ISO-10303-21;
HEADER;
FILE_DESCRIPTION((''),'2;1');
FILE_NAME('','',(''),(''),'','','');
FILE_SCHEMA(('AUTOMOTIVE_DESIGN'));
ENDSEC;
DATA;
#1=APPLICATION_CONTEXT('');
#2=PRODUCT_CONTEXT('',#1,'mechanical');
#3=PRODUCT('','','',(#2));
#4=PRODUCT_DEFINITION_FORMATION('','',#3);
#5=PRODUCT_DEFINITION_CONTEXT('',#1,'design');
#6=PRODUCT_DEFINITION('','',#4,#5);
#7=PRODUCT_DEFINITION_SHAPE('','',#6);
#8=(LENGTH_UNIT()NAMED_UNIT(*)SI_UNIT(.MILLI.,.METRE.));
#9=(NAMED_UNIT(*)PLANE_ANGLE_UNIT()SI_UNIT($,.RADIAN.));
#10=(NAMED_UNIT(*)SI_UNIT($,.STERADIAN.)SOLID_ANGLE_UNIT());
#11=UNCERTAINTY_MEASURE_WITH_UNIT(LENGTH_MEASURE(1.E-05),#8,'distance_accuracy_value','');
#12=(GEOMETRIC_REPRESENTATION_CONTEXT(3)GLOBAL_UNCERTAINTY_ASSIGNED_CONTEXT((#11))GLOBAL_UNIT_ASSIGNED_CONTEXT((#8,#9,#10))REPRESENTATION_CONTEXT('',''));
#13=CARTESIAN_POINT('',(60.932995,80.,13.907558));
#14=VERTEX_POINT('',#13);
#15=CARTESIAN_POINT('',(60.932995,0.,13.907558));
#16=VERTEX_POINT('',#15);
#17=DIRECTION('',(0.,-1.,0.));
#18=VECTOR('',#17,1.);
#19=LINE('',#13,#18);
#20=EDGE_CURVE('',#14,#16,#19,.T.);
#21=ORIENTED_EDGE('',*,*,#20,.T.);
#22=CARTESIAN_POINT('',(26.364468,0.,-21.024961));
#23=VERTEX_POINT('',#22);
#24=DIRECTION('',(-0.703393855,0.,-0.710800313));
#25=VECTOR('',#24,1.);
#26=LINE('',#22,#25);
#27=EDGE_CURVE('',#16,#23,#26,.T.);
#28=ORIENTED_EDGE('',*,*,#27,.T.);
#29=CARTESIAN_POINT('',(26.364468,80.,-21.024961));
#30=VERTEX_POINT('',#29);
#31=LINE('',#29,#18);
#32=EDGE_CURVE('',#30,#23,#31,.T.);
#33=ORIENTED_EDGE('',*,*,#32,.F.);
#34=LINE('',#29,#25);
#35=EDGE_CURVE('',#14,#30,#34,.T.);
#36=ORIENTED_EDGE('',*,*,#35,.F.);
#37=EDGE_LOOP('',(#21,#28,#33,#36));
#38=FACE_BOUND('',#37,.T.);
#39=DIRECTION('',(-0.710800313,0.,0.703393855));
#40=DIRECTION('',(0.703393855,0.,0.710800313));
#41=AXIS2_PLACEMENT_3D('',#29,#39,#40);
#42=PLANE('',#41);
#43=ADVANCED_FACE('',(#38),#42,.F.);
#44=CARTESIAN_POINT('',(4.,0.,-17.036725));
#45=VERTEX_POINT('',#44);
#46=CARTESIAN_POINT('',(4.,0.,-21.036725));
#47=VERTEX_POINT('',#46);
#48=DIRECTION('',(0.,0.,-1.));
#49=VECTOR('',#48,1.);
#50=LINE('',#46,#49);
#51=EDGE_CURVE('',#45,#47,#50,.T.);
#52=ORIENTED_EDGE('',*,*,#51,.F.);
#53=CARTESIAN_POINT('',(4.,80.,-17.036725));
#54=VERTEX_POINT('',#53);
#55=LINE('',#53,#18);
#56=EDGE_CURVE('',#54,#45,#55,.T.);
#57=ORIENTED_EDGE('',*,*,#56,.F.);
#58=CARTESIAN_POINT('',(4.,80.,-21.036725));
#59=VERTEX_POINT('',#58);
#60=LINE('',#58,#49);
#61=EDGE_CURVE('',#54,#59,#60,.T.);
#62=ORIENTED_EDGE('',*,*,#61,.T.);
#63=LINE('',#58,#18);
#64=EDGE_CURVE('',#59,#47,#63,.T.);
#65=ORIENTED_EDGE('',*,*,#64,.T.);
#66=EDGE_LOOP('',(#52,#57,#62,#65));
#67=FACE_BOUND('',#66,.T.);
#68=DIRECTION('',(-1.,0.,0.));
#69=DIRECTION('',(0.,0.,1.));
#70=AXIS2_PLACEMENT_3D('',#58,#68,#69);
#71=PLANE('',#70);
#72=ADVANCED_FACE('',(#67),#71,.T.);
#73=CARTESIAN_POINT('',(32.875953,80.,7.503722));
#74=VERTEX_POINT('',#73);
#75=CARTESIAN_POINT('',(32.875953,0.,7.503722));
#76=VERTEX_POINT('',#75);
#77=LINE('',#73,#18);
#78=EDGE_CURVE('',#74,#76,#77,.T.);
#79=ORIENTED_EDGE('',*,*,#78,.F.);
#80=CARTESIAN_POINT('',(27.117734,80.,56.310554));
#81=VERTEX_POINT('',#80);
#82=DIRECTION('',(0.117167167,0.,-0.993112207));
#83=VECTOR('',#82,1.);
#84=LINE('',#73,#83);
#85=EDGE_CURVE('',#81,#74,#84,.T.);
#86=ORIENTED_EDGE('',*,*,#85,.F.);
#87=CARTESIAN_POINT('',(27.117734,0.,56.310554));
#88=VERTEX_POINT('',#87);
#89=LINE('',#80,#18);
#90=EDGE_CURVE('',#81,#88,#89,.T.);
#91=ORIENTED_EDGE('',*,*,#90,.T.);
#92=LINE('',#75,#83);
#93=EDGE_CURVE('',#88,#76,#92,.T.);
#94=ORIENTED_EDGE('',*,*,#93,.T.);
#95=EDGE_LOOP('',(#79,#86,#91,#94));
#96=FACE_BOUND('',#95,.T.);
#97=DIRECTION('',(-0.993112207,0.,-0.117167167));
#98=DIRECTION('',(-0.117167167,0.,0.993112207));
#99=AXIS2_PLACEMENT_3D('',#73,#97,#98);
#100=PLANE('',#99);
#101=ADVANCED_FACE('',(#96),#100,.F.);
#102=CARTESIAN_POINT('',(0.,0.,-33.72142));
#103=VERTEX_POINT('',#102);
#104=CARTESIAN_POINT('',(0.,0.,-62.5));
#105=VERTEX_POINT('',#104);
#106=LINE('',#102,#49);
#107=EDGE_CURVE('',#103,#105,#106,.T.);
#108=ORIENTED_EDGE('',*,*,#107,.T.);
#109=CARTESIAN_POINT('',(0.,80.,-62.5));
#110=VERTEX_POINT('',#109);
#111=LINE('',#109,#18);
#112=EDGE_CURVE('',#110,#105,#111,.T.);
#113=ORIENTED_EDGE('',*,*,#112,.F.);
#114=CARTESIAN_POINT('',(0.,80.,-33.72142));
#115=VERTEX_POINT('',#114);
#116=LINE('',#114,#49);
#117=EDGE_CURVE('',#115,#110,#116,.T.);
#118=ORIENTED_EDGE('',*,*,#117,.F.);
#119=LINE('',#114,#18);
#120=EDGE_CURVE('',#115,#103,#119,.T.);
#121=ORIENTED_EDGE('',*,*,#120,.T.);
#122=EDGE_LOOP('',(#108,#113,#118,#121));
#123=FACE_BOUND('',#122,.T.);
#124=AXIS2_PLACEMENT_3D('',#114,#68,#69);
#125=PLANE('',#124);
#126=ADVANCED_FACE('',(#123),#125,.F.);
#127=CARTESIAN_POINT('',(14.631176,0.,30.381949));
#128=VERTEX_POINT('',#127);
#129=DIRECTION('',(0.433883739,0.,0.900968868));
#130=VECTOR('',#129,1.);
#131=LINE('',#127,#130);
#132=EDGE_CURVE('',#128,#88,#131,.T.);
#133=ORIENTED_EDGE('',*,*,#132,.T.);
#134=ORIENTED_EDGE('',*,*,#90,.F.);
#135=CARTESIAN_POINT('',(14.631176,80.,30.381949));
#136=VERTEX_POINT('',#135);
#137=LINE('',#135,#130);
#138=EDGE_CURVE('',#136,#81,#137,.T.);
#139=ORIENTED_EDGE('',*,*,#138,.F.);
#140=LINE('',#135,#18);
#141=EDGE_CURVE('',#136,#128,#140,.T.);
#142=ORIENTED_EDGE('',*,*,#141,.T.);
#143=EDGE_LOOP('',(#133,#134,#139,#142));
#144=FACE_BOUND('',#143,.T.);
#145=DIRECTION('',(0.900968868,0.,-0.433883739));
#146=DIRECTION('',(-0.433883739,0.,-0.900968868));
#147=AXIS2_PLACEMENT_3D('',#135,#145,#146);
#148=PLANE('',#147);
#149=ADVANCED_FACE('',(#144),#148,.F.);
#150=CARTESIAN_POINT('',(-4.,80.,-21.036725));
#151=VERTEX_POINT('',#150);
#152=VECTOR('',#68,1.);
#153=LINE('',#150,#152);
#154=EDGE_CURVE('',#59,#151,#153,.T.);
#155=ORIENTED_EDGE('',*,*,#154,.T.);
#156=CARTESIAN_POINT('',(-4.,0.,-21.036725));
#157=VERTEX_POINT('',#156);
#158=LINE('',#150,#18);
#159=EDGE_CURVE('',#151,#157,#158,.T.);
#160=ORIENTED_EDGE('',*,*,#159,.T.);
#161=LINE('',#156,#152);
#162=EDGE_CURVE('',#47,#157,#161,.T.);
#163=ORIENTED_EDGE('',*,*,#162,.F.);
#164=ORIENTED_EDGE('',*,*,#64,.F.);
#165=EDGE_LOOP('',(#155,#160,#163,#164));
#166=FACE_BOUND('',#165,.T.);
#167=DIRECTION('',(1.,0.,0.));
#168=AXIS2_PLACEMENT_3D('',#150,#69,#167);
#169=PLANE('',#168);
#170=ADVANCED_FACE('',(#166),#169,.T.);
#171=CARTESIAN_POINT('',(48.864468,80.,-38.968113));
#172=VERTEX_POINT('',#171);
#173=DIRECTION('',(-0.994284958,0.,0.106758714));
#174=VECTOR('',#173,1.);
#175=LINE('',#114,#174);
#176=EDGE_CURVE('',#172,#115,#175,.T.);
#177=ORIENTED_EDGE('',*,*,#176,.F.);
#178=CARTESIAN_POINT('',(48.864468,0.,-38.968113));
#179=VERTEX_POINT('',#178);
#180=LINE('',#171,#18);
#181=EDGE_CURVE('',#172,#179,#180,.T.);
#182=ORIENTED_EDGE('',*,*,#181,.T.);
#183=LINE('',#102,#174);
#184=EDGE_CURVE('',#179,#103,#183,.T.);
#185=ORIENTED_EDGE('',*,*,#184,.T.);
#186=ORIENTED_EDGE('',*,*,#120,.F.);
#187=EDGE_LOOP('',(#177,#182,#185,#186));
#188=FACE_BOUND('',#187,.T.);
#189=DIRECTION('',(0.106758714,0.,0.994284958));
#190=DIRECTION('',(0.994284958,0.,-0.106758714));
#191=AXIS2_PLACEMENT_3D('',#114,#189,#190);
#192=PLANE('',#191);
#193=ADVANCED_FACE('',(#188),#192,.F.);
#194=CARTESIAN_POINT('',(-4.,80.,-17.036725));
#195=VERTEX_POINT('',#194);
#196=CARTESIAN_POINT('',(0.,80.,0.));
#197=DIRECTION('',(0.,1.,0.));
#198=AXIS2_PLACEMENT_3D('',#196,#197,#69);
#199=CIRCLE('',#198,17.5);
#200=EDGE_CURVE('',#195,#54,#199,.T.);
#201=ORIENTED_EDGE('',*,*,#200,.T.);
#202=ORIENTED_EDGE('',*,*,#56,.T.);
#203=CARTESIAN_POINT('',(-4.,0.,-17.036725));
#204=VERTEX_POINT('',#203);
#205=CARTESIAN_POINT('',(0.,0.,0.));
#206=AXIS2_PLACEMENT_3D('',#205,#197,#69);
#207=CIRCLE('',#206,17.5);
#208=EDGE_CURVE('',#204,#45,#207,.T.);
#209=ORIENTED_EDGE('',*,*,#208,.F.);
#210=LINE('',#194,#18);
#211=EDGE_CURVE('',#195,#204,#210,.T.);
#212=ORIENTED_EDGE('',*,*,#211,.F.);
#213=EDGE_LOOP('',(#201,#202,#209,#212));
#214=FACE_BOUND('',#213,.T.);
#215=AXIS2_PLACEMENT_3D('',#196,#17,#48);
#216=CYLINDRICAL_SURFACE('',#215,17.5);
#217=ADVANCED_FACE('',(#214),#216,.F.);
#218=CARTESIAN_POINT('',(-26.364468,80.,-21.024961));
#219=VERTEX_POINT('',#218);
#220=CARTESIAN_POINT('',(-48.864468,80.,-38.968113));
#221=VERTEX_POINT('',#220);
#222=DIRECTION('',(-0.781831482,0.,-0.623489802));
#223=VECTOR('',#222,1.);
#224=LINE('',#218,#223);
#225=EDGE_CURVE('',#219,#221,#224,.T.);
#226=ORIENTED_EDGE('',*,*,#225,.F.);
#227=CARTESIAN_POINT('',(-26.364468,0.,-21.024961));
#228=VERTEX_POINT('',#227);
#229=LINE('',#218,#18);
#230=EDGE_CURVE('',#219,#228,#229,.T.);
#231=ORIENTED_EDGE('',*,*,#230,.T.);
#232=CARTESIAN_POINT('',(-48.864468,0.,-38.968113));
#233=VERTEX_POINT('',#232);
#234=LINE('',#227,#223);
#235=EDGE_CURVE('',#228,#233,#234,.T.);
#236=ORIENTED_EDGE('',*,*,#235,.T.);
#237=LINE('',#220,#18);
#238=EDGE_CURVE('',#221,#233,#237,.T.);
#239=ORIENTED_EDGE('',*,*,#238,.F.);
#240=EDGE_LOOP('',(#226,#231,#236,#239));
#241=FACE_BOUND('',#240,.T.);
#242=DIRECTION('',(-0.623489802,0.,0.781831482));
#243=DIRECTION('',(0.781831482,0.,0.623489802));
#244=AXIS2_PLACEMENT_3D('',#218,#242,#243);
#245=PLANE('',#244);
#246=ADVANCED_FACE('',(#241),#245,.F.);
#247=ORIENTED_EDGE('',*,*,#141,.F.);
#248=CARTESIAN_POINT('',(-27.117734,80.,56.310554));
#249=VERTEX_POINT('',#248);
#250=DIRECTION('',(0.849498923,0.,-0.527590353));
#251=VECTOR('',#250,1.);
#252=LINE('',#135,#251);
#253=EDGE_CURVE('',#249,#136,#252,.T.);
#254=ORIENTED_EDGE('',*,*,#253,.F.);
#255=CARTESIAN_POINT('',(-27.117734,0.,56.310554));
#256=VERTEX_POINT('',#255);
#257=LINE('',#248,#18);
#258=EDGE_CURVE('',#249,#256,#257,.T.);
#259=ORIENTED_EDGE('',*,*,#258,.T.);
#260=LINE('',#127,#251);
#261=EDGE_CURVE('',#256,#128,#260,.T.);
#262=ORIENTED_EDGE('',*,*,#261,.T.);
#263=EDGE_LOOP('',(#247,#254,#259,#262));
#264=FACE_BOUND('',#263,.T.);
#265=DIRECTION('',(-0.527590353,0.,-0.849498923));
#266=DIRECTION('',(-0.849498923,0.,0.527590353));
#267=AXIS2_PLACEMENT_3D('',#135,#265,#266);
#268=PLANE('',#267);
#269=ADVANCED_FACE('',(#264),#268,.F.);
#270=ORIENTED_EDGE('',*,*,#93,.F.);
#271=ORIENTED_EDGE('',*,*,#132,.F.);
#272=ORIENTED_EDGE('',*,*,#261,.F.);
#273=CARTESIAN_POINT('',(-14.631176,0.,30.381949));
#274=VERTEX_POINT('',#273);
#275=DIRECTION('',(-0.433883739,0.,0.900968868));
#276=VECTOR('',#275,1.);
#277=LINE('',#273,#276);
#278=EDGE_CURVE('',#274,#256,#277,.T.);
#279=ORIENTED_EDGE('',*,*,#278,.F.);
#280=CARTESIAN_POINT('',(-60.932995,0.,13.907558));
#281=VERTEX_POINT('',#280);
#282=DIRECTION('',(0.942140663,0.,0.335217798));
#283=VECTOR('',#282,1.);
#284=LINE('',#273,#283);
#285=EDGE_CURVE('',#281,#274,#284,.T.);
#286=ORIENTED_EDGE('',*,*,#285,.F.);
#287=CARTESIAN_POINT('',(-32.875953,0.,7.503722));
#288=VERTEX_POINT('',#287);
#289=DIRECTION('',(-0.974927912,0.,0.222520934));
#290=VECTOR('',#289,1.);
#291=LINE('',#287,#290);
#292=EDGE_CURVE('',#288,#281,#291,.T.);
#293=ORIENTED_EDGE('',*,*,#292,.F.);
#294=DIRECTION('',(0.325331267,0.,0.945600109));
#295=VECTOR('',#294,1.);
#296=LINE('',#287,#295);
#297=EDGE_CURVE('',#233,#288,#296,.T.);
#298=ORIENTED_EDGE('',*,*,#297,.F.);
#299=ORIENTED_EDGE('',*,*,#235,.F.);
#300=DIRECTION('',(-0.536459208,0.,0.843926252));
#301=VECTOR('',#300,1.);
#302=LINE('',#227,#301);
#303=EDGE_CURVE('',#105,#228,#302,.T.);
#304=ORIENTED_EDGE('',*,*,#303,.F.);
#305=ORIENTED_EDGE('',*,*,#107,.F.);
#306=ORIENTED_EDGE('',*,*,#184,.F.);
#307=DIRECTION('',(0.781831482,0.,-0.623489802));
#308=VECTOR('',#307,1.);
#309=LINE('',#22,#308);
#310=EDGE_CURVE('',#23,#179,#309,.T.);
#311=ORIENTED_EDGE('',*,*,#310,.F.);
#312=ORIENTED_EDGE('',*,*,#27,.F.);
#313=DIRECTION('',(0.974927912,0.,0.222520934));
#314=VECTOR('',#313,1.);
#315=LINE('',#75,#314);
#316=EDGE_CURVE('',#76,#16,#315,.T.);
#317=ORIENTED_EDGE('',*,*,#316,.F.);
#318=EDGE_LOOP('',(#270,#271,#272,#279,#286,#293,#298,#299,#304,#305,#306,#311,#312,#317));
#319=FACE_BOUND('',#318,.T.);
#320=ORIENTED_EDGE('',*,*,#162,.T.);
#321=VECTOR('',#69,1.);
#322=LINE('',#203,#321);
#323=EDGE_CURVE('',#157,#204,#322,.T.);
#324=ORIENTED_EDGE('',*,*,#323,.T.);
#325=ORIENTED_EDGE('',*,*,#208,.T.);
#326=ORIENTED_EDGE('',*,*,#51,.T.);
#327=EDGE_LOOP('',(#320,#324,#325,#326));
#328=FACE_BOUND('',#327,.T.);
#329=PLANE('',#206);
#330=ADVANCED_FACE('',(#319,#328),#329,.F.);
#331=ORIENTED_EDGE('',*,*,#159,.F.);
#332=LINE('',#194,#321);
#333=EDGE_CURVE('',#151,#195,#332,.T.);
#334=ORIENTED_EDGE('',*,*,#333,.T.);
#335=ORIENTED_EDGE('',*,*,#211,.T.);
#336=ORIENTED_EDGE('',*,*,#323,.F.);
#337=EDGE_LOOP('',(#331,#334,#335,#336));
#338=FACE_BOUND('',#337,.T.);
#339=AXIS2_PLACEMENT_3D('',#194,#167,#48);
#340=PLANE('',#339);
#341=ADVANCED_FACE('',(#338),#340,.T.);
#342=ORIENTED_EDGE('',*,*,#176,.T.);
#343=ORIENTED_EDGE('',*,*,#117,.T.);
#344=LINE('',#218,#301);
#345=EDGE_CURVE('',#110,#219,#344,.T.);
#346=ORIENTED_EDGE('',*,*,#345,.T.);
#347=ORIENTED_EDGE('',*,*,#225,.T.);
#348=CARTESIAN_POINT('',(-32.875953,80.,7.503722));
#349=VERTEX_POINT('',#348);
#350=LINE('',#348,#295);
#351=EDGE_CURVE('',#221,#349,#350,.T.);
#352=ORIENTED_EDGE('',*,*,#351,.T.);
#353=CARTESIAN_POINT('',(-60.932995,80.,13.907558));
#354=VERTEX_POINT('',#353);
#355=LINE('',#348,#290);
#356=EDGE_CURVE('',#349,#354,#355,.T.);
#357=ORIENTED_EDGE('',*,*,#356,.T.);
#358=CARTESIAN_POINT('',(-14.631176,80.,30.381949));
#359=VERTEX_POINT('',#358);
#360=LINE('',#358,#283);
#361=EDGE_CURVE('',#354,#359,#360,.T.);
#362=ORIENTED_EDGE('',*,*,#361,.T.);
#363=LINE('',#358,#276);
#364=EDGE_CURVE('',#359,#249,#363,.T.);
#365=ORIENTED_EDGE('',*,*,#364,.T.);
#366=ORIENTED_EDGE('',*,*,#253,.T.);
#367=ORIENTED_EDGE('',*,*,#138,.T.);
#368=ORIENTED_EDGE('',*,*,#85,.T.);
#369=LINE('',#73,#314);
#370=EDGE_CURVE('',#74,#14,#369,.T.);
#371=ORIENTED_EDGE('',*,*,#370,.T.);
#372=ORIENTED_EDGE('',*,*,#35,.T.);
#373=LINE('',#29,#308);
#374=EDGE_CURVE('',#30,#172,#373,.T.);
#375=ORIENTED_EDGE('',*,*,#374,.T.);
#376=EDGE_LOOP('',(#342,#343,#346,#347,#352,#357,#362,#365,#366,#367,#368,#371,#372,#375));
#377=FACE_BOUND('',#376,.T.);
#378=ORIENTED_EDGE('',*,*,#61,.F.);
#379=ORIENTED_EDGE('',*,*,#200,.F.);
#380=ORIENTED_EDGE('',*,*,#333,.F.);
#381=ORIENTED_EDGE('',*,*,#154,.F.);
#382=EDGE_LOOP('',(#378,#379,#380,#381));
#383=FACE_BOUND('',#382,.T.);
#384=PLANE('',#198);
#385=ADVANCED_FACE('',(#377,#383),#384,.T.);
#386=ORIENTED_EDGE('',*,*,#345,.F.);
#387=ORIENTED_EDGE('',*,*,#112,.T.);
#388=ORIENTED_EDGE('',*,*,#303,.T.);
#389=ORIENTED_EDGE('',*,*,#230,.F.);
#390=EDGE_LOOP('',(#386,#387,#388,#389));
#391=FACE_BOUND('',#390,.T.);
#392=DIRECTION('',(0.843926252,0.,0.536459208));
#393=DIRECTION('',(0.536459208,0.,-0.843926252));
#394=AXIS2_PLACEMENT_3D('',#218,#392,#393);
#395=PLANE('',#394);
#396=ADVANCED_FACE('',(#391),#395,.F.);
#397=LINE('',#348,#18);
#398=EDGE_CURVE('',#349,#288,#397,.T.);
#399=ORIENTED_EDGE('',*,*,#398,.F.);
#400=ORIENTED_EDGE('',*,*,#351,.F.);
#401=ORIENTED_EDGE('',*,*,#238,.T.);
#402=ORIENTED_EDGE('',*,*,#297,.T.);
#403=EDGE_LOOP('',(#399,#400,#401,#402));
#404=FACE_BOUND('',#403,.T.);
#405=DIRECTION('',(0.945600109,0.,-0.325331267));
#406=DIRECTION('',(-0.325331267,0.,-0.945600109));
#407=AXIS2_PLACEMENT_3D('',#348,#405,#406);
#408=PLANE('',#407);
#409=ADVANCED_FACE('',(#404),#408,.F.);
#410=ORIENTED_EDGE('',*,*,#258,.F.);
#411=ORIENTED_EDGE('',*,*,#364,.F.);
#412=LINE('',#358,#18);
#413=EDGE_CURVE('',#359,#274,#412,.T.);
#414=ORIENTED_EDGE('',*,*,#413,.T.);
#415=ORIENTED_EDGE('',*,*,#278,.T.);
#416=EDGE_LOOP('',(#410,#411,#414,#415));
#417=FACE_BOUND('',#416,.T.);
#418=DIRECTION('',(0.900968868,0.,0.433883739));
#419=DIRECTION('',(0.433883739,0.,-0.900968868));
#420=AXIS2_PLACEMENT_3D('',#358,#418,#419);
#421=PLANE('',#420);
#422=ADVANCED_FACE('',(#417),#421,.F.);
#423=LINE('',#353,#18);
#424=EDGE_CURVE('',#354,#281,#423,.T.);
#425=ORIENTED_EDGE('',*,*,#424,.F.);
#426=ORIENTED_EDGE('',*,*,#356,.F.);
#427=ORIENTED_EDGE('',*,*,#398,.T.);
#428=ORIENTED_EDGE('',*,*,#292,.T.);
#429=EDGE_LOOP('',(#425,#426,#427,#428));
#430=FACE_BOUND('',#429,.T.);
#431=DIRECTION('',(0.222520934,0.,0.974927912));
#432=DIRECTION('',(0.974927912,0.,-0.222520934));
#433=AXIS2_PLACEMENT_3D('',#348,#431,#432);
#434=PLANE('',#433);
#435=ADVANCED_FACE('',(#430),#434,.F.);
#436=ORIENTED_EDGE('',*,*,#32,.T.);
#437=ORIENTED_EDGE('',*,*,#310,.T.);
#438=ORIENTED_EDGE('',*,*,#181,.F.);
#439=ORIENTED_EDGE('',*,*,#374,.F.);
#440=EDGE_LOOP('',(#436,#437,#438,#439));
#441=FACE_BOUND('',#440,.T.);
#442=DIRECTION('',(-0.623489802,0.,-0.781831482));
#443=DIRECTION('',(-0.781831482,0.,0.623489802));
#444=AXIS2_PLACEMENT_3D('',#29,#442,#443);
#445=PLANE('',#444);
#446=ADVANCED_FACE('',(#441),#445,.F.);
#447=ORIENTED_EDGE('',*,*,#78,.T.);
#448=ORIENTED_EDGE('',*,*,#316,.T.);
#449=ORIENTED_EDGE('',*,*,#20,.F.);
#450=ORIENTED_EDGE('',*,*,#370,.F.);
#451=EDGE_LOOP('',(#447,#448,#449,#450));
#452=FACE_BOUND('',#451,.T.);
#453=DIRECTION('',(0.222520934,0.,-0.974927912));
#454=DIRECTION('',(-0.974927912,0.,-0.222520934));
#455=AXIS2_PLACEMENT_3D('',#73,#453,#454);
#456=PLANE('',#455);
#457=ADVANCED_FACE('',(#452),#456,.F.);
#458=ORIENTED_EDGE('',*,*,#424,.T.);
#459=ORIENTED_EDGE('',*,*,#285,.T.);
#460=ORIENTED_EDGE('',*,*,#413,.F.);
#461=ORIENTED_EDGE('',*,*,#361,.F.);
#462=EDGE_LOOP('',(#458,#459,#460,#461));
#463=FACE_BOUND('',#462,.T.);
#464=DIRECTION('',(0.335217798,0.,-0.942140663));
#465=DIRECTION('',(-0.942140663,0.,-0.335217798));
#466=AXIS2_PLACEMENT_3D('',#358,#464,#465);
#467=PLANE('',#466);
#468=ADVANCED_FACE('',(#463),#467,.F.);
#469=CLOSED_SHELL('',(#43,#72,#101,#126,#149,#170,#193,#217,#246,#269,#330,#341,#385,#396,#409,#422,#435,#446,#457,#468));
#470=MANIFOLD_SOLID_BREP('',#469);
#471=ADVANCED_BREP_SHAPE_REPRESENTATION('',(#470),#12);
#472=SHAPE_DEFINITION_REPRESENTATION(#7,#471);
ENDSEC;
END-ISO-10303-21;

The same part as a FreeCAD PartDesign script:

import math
import FreeCAD as App
import Part
import Sketcher
from FreeCAD import Vector


def add_polygon(sketch, points):
    """Adds a closed chain of lines whose ends are joined by coincident constraints."""
    first, n = sketch.GeometryCount, len(points)
    for a, b in zip(points, points[1:] + points[:1]):
        sketch.addGeometry(Part.LineSegment(App.Vector(*a, 0), App.Vector(*b, 0)), False)
    for i in range(n):
        sketch.addConstraint(Sketcher.Constraint("Coincident", first + i, 2, first + (i + 1) % n, 1))

doc = App.newDocument("Part")
body = doc.addObject("PartDesign::Body", "Body")

sketch1 = doc.addObject("Sketcher::SketchObject", "Sketch")
body.addObject(sketch1)
sketch1.AttachmentSupport = (doc.XZ_Plane, [""])
sketch1.MapMode = "FlatFace"
add_polygon(sketch1, [(0, -33.7), (0, -62.5), (-26.4, -21), (-48.9, -39), (-32.9, 7.5), (-60.9, 13.9), (-14.6, 30.4), (-27.1, 56.3), (14.6, 30.4), (27.1, 56.3), (32.9, 7.5), (60.9, 13.9), (26.4, -21), (48.9, -39)])
sketch1.addGeometry(Part.ArcOfCircle(Part.Circle(Vector(0, 0, 0), Vector(0, 0, 1), 17.5), math.radians(-77), math.radians(257)), False)
sketch1.addGeometry(Part.LineSegment(Vector(-4, -17, 0), Vector(-4, -21, 0)), False)
sketch1.addGeometry(Part.LineSegment(Vector(-4, -21, 0), Vector(4, -21, 0)), False)
sketch1.addGeometry(Part.LineSegment(Vector(4, -21, 0), Vector(4, -17, 0)), False)
sketch1.addConstraint([
    Sketcher.Constraint("Coincident", 14, 2, 15, 1),
    Sketcher.Constraint("Coincident", 15, 2, 16, 1),
    Sketcher.Constraint("Coincident", 16, 2, 17, 1),
    Sketcher.Constraint("Coincident", 17, 2, 14, 1),
    Sketcher.Constraint("Vertical", 0),
    Sketcher.Constraint("Vertical", 15),
    Sketcher.Constraint("Horizontal", 16),
    Sketcher.Constraint("Vertical", 17),
    Sketcher.Constraint("Coincident", 14, 3, -1, 1),
    Sketcher.Constraint("Symmetric", 5, 2, 7, 2, -2),
    Sketcher.Constraint("Symmetric", 6, 2, 8, 2, -2),
    Sketcher.Constraint("Symmetric", 3, 2, 9, 2, -2),
    Sketcher.Constraint("Symmetric", 4, 2, 10, 2, -2),
    Sketcher.Constraint("Symmetric", 1, 2, 11, 2, -2),
    Sketcher.Constraint("Symmetric", 2, 2, 12, 2, -2),
    Sketcher.Constraint("PointOnObject", 0, 2, -2),
    Sketcher.Constraint("Horizontal", 14, 2, 17, 2),
    Sketcher.Constraint("Equal", 1, 3),
    Sketcher.Constraint("Equal", 2, 4),
    Sketcher.Constraint("Equal", 3, 5),
    Sketcher.Constraint("Equal", 4, 6),
    Sketcher.Constraint("Equal", 5, 7),
    Sketcher.Constraint("Equal", 7, 9),
    Sketcher.Constraint("Equal", 9, 11),
    Sketcher.Constraint("Equal", 11, 13),
    Sketcher.Constraint("Radius", 14, 17.5),
    Sketcher.Constraint("DistanceX", 16, 1, 16, 2, 8.0),
    Sketcher.Constraint("DistanceY", 15, 2, 15, 1, 4.0),
    Sketcher.Constraint("DistanceY", 0, 2, -1, 1, 62.5),
    Sketcher.Constraint("DistanceX", 2, 2, 1, 2, 22.5),
    Sketcher.Constraint("DistanceY", 0, 2, 0, 1, 28.77858),
    Sketcher.Constraint("Distance", 2, 28.77858),
    Sketcher.Constraint("DistanceY", 1, 2, -1, 1, 21.024961),
    Sketcher.Constraint("DistanceY", -1, 1, 3, 2, 7.503722),
])
pad1 = doc.addObject("PartDesign::Pad", "Pad")
body.addObject(pad1)
pad1.Profile = sketch1
pad1.Length = 80
pad1.Reversed = True

doc.recompute()
